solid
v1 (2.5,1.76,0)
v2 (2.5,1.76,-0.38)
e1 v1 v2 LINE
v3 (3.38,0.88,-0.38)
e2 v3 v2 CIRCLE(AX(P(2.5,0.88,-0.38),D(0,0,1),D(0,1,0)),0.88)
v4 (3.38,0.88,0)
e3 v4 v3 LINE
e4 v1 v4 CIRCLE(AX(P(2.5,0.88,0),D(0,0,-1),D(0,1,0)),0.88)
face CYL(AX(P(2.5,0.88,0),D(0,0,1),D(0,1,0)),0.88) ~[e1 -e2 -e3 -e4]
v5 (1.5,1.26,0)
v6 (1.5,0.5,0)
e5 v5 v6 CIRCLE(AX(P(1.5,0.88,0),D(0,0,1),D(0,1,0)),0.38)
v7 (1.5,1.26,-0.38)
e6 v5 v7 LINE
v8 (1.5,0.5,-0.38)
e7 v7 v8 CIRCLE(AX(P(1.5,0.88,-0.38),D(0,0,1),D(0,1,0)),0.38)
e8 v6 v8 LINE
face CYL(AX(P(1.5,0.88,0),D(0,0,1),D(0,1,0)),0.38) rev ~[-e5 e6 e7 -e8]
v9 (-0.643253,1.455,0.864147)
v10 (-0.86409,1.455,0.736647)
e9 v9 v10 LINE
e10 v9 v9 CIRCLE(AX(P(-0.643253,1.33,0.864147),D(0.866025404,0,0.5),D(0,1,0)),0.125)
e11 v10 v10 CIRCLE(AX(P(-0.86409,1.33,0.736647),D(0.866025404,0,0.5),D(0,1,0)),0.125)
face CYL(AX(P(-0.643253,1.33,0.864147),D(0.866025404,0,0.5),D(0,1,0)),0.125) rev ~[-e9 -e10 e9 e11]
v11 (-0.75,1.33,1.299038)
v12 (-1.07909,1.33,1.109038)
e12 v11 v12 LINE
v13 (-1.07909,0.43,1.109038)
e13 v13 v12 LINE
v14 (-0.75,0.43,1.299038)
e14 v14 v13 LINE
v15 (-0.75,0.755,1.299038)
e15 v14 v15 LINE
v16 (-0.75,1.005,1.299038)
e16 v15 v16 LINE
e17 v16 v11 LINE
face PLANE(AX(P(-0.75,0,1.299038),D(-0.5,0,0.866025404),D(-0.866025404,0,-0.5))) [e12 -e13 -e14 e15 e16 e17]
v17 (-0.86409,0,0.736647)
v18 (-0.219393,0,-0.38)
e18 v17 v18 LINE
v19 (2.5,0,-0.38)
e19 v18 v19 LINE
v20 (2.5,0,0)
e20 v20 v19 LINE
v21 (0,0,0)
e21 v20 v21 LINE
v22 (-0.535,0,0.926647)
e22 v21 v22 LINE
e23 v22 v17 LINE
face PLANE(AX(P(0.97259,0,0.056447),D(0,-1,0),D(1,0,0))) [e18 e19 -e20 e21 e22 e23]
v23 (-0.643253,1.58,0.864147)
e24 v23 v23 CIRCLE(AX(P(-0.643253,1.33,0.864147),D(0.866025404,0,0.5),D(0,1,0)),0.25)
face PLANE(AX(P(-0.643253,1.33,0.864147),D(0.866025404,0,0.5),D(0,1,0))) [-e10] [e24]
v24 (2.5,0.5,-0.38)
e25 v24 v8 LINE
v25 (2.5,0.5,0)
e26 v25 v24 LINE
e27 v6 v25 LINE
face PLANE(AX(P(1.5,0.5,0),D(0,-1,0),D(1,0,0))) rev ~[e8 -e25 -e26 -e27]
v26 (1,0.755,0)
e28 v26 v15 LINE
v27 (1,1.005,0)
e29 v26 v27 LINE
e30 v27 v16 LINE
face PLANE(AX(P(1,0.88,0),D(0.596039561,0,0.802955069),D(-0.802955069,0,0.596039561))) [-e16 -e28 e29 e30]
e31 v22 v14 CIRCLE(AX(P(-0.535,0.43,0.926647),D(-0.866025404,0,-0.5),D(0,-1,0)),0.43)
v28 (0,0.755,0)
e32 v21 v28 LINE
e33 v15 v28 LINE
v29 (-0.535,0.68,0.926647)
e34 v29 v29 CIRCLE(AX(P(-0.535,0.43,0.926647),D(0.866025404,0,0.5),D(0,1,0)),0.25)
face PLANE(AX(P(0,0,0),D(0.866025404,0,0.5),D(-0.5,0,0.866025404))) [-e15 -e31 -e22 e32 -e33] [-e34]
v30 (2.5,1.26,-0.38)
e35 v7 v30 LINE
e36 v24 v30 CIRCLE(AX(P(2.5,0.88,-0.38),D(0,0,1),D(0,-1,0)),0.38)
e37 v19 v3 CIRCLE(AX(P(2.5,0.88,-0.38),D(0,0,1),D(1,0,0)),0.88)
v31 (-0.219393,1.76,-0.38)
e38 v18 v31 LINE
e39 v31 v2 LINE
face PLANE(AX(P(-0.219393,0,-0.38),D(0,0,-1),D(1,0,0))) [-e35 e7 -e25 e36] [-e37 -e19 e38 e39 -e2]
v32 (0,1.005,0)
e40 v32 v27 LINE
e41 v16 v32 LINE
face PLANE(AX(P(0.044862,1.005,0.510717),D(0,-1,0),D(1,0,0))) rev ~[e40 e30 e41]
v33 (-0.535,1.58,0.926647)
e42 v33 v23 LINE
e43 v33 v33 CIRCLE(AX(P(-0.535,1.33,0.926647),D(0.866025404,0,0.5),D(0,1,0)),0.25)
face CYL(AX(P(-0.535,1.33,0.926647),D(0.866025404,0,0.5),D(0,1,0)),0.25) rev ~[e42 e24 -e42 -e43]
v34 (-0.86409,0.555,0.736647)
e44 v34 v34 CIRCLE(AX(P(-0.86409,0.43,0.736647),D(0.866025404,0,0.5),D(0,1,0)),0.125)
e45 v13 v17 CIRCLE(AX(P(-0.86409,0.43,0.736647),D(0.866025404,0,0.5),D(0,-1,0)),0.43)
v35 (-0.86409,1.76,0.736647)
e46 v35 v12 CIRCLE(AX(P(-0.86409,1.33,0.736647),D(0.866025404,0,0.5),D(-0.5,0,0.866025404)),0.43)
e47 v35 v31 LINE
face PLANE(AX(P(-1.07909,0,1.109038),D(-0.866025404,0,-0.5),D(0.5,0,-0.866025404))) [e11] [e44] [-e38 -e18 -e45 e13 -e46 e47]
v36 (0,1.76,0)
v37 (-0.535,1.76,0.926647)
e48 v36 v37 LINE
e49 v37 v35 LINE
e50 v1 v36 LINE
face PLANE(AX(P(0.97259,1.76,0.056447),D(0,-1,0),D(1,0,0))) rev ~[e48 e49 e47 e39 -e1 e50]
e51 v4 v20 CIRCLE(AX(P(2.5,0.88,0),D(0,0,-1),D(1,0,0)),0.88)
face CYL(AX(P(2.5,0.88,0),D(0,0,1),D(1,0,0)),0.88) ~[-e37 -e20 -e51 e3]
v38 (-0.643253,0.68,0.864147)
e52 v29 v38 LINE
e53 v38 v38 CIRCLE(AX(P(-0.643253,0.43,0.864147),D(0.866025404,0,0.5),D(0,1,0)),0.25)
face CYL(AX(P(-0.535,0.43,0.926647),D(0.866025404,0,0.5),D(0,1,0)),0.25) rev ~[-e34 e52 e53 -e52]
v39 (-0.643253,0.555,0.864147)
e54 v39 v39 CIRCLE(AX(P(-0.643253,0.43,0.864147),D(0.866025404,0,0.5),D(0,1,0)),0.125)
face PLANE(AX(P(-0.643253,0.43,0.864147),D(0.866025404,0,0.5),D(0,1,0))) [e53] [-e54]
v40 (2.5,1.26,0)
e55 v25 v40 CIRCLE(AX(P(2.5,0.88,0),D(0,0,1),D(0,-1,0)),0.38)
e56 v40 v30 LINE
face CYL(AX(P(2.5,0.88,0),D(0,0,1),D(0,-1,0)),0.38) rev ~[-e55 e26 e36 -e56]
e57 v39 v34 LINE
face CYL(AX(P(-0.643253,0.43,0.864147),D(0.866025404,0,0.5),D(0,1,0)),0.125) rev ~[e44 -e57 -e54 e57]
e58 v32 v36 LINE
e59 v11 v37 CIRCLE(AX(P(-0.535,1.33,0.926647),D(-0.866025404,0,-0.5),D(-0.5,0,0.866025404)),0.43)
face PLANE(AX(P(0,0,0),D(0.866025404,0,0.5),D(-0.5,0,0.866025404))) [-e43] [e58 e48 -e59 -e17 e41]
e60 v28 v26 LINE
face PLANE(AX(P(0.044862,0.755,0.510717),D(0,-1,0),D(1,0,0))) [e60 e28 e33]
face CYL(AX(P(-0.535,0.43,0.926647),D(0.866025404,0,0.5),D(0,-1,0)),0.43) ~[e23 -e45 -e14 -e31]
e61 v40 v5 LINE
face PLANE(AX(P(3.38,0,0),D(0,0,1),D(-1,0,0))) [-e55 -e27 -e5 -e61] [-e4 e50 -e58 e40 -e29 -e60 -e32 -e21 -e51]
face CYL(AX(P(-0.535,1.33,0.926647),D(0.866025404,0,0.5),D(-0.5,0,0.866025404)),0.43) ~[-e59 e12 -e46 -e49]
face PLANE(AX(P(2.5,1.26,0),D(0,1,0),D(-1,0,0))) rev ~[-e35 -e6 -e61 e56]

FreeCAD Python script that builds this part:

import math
import FreeCAD as App
import Part
import Sketcher

V = App.Vector
Q = App.Units.Quantity

doc = App.newDocument("Part")
body = doc.addObject("PartDesign::Body", "Body")

# Sketch on XZ plane
sketch1 = body.newObject("Sketcher::SketchObject", "Sketch")
sketch1.AttachmentSupport = (doc.getObject("XZ_Plane"), [""])
sketch1.MapMode = "FlatFace"
sketch1.addGeometry([
    Part.LineSegment(V(0, 0, 0), V(-0.75, 1.299038, 0)),  # 0
    Part.LineSegment(V(-0.75, 1.299038, 0), V(-1.07909, 1.109038, 0)),  # 1
    Part.LineSegment(V(-1.07909, 1.109038, 0), V(-0.219393, -0.38, 0)),  # 2
    Part.LineSegment(V(-0.219393, -0.38, 0), V(3.38, -0.38, 0)),  # 3
    Part.LineSegment(V(3.38, -0.38, 0), V(3.38, 0, 0)),  # 4
    Part.LineSegment(V(3.38, 0, 0), V(0, 0, 0)),  # 5
], False)
sketch1.addConstraint([
    Sketcher.Constraint("Coincident", 0, 2, 1, 1),
    Sketcher.Constraint("Coincident", 1, 2, 2, 1),
    Sketcher.Constraint("Coincident", 2, 2, 3, 1),
    Sketcher.Constraint("Coincident", 3, 2, 4, 1),
    Sketcher.Constraint("Coincident", 4, 2, 5, 1),
    Sketcher.Constraint("Coincident", 5, 2, 0, 1),
    Sketcher.Constraint("Horizontal", 3),
    Sketcher.Constraint("Vertical", 4),
    Sketcher.Constraint("Horizontal", 5),
    Sketcher.Constraint("Coincident", 5, 2, -1, 1),
    Sketcher.Constraint("Perpendicular", 0, 1),
    Sketcher.Constraint("Perpendicular", 1, 2),
    Sketcher.Constraint("Angle", 0, Q("120 deg")),
    Sketcher.Constraint("Distance", 0, 1.5),
    Sketcher.Constraint("DistanceX", 5, 2, 5, 1, 3.38),
    Sketcher.Constraint("DistanceY", 4, 1, 4, 2, 0.38),
    Sketcher.Constraint("Distance", 1, 0.38),
])
pad1 = body.newObject("PartDesign::Pad", "Pad")
pad1.Profile = sketch1
pad1.Length = 1.76
pad1.Reversed = True

# Sketch on XY plane
sketch2 = body.newObject("Sketcher::SketchObject", "Sketch001")
sketch2.AttachmentSupport = (doc.getObject("XY_Plane"), [""])
sketch2.MapMode = "FlatFace"
sketch2.addGeometry([
    Part.LineSegment(V(1.5, 0.5, 0), V(2.5, 0.5, 0)),  # 0
    Part.ArcOfCircle(Part.Circle(V(2.5, 0.88, 0), V(0, 0, 1), 0.38), math.radians(-90), math.radians(90)),  # 1
    Part.LineSegment(V(2.5, 1.26, 0), V(1.5, 1.26, 0)),  # 2
    Part.ArcOfCircle(Part.Circle(V(1.5, 0.88, 0), V(0, 0, 1), 0.38), math.radians(90), math.radians(270)),  # 3
    Part.ArcOfCircle(Part.Circle(V(2.5, 0.88, 0), V(0, 0, 1), 0.88), math.radians(0), math.radians(90)),  # 4
    Part.LineSegment(V(3.38, 0.88, 0), V(3.38, 1.76, 0)),  # 5
    Part.LineSegment(V(3.38, 1.76, 0), V(2.5, 1.76, 0)),  # 6
    Part.ArcOfCircle(Part.Circle(V(2.5, 0.88, 0), V(0, 0, 1), 0.88), math.radians(-90), math.radians(0)),  # 7
    Part.LineSegment(V(2.5, 0, 0), V(3.38, 0, 0)),  # 8
    Part.LineSegment(V(3.38, 0, 0), V(3.38, 0.88, 0)),  # 9
], False)
sketch2.addConstraint([
    Sketcher.Constraint("Tangent", 0, 2, 1, 1),
    Sketcher.Constraint("Tangent", 1, 2, 2, 1),
    Sketcher.Constraint("Tangent", 2, 2, 3, 1),
    Sketcher.Constraint("Tangent", 3, 2, 0, 1),
    Sketcher.Constraint("Tangent", 4, 1, 5, 1),
    Sketcher.Constraint("Coincident", 5, 2, 6, 1),
    Sketcher.Constraint("Tangent", 6, 2, 4, 2),
    Sketcher.Constraint("Tangent", 7, 1, 8, 1),
    Sketcher.Constraint("Coincident", 8, 2, 9, 1),
    Sketcher.Constraint("Tangent", 9, 2, 7, 2),
    Sketcher.Constraint("Horizontal", 0),
    Sketcher.Constraint("Horizontal", 2),
    Sketcher.Constraint("Vertical", 5),
    Sketcher.Constraint("Horizontal", 6),
    Sketcher.Constraint("Horizontal", 8),
    Sketcher.Constraint("Vertical", 9),
    Sketcher.Constraint("Coincident", 4, 3, 1, 3),
    Sketcher.Constraint("Coincident", 7, 3, 1, 3),
    Sketcher.Constraint("Equal", 4, 7),
    Sketcher.Constraint("PointOnObject", 7, 1, -1),
    Sketcher.Constraint("DistanceX", 0, 1, 0, 2, 1.0),
    Sketcher.Constraint("Radius", 1, 0.38),
    Sketcher.Constraint("Radius", 4, 0.88),
    Sketcher.Constraint("DistanceX", -1, 1, 1, 3, 2.5),
])
pocket1 = body.newObject("PartDesign::Pocket", "Pocket")
pocket1.Profile = sketch2
pocket1.Length = 25

# Sketch on an angled plane
sketch3 = body.newObject("Sketcher::SketchObject", "Sketch002")
sketch3.Placement = App.Placement(V(0, 0, 0), App.Rotation(V(0, 1, 0), V(-0.5, 0, 0.866025404), V(0.866025404, 0, 0.5), "ZXY"))
sketch3.addGeometry([
    Part.Circle(V(0.43, 1.07, 0), V(0, 0, 1), 0.25),
    Part.Circle(V(1.33, 1.07, 0), V(0, 0, 1), 0.25),
], False)
sketch3.addConstraint([
    Sketcher.Constraint("Equal", 0, 1),
    Sketcher.Constraint("Horizontal", 0, 3, 1, 3),
    Sketcher.Constraint("Diameter", 0, 0.5),
    Sketcher.Constraint("DistanceX", 0, 3, 1, 3, 0.9),
    Sketcher.Constraint("DistanceX", -1, 1, 0, 3, 0.43),
    Sketcher.Constraint("DistanceY", -1, 1, 0, 3, 1.07),
])
pocket2 = body.newObject("PartDesign::Pocket", "Pocket001")
pocket2.Profile = sketch3
pocket2.Length = 0.125

# Sketch on an angled plane
sketch4 = body.newObject("Sketcher::SketchObject", "Sketch003")
sketch4.Placement = App.Placement(V(0, 0, 0), App.Rotation(V(0, 1, 0), V(-0.5, 0, 0.866025404), V(0.866025404, 0, 0.5), "ZXY"))
sketch4.addGeometry([
    Part.ArcOfCircle(Part.Circle(V(1.33, 1.07, 0), V(0, 0, 1), 0.43), math.radians(0), math.radians(90)),  # 0
    Part.LineSegment(V(1.76, 1.07, 0), V(1.76, 1.5, 0)),  # 1
    Part.LineSegment(V(1.76, 1.5, 0), V(1.33, 1.5, 0)),  # 2
    Part.ArcOfCircle(Part.Circle(V(0.43, 1.07, 0), V(0, 0, 1), 0.43), math.radians(90), math.radians(180)),  # 3
    Part.LineSegment(V(0.43, 1.5, 0), V(0, 1.5, 0)),  # 4
    Part.LineSegment(V(0, 1.5, 0), V(0, 1.07, 0)),  # 5
], False)
sketch4.addConstraint([
    Sketcher.Constraint("Tangent", 0, 1, 1, 1),
    Sketcher.Constraint("Coincident", 1, 2, 2, 1),
    Sketcher.Constraint("Tangent", 2, 2, 0, 2),
    Sketcher.Constraint("Tangent", 3, 1, 4, 1),
    Sketcher.Constraint("Coincident", 4, 2, 5, 1),
    Sketcher.Constraint("Tangent", 5, 2, 3, 2),
    Sketcher.Constraint("Vertical", 1),
    Sketcher.Constraint("Horizontal", 2),
    Sketcher.Constraint("Horizontal", 4),
    Sketcher.Constraint("Vertical", 5),
    Sketcher.Constraint("Equal", 0, 3),
    Sketcher.Constraint("PointOnObject", 4, 2, -2),
    Sketcher.Constraint("Horizontal", 0, 3, 3, 3),
    Sketcher.Constraint("Radius", 0, 0.43),
    Sketcher.Constraint("DistanceY", -1, 1, 1, 2, 1.5),
    Sketcher.Constraint("DistanceX", 3, 3, 0, 3, 0.9),
])
pocket3 = body.newObject("PartDesign::Pocket", "Pocket002")
pocket3.Profile = sketch4
pocket3.Length = 25

# Sketch on an angled plane
sketch5 = body.newObject("Sketcher::SketchObject", "Sketch004")
sketch5.Placement = App.Placement(V(-0.108253, 0, -0.0625), App.Rotation(V(0, 1, 0), V(-0.5, 0, 0.866025404), V(0.866025404, 0, 0.5), "ZXY"))
sketch5.addGeometry([
    Part.Circle(V(0.43, 1.07, 0), V(0, 0, 1), 0.125),
    Part.Circle(V(1.33, 1.07, 0), V(0, 0, 1), 0.125),
], False)
sketch5.addConstraint([
    Sketcher.Constraint("Equal", 0, 1),
    Sketcher.Constraint("Horizontal", 0, 3, 1, 3),
    Sketcher.Constraint("Diameter", 0, 0.25),
    Sketcher.Constraint("DistanceX", 0, 3, 1, 3, 0.9),
    Sketcher.Constraint("DistanceX", -1, 1, 0, 3, 0.43),
    Sketcher.Constraint("DistanceY", -1, 1, 0, 3, 1.07),
])
pocket4 = body.newObject("PartDesign::Pocket", "Pocket003")
pocket4.Profile = sketch5
pocket4.Length = 25

# Sketch on XZ plane
sketch6 = body.newObject("Sketcher::SketchObject", "Sketch005")
sketch6.AttachmentSupport = (doc.getObject("XZ_Plane"), [""])
sketch6.MapMode = "FlatFace"
sketch6.AttachmentOffset = App.Placement(V(0, 0, -0.88), App.Rotation())
sketch6.addGeometry([
    Part.LineSegment(V(-0.75, 1.299038, 0), V(0, 0, 0)),
    Part.LineSegment(V(0, 0, 0), V(1, 0, 0)),
    Part.LineSegment(V(1, 0, 0), V(-0.75, 1.299038, 0)),
], False)
sketch6.addConstraint([
    Sketcher.Constraint("Coincident", 0, 2, 1, 1),
    Sketcher.Constraint("Coincident", 1, 2, 2, 1),
    Sketcher.Constraint("Coincident", 2, 2, 0, 1),
    Sketcher.Constraint("Horizontal", 1),
    Sketcher.Constraint("Coincident", 0, 2, -1, 1),
    Sketcher.Constraint("DistanceX", 1, 1, 1, 2, 1.0),
    Sketcher.Constraint("Angle", 0, Q("-60 deg")),
    Sketcher.Constraint("Distance", 0, 1.5),
])
pad2 = body.newObject("PartDesign::Pad", "Pad001")
pad2.Profile = sketch6
pad2.Length = 0.25
pad2.Midplane = True

doc.recompute()
